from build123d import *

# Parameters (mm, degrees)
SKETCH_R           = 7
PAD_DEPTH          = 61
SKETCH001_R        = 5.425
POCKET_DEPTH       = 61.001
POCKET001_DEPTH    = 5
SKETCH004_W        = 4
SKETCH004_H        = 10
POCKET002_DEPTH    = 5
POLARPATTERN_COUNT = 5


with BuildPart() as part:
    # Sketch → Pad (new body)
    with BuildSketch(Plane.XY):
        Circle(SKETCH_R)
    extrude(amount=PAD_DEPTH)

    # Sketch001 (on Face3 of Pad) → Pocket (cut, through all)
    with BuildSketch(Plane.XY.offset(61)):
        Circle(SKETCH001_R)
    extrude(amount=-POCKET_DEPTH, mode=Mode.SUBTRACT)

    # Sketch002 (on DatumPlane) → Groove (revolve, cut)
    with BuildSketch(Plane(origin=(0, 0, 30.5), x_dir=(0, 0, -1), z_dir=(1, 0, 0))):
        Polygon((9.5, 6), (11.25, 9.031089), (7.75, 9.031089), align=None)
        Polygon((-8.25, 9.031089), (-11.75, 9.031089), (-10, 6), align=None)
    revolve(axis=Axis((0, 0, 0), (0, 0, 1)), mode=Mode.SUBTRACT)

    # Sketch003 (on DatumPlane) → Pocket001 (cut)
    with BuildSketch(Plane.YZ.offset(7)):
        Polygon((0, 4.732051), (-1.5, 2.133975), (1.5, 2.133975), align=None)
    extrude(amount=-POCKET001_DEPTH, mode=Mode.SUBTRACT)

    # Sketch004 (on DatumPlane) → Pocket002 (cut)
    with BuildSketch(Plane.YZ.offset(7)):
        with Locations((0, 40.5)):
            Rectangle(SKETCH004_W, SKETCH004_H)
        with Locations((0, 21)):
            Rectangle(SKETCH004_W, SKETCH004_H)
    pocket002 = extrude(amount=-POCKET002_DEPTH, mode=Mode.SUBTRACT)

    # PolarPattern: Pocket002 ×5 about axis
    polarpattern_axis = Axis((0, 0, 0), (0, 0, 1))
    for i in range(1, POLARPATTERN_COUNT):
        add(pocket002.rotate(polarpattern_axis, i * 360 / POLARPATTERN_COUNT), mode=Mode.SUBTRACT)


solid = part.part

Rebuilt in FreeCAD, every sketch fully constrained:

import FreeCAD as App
import Part
import Sketcher

V = App.Vector
Q = App.Units.Quantity


def add_polygon(sketch, points):
    """Adds a closed chain of lines whose ends are joined by coincident constraints."""
    first, n = sketch.GeometryCount, len(points)
    for a, b in zip(points, points[1:] + points[:1]):
        sketch.addGeometry(Part.LineSegment(App.Vector(*a, 0), App.Vector(*b, 0)), False)
    for i in range(n):
        sketch.addConstraint(Sketcher.Constraint("Coincident", first + i, 2, first + (i + 1) % n, 1))

doc = App.newDocument("Part")
params = doc.addObject("Spreadsheet::Sheet", "Params")
for row, (alias, value) in enumerate([
    ("sketch1_diameter", "14 mm"),
    ("pad1_length", "61 mm"),
    ("sketch2_diameter", "10.85 mm"),
    ("sketch3_height", "3.5 mm"),
    ("groove_angle", "360 deg"),
    ("sketch4_width", "3 mm"),
    ("pocket2_length", "5 mm"),
    ("sketch5_width", "4 mm"),
    ("sketch5_height", "10 mm"),
    ("pocket3_length", "5 mm"),
], start=1):
    params.set(f"A{row}", alias)
    params.set(f"B{row}", "=" + value)
    params.setAlias(f"B{row}", alias)

body = doc.addObject("PartDesign::Body", "Body")

sketch1 = body.newObject("Sketcher::SketchObject", "Sketch")
sketch1.AttachmentSupport = (doc.getObject("XY_Plane"), [""])
sketch1.MapMode = "FlatFace"
sketch1.addGeometry(Part.Circle(V(0, 0, 0), V(0, 0, 1), 7), False)
sketch1.addConstraint(Sketcher.Constraint("Coincident", 0, 3, -1, 1))
sketch1.addConstraint(Sketcher.Constraint("Diameter", 0, 14.0))
sketch1.setExpression("Constraints[1]", "Params.sketch1_diameter")
pad1 = body.newObject("PartDesign::Pad", "Pad")
pad1.Profile = sketch1
pad1.setExpression("Length", "Params.pad1_length")

sketch2 = body.newObject("Sketcher::SketchObject", "Sketch001")
sketch2.AttachmentSupport = (doc.getObject("XY_Plane"), [""])
sketch2.MapMode = "FlatFace"
sketch2.AttachmentOffset = App.Placement(V(0, 0, 61), App.Rotation())
sketch2.addGeometry(Part.Circle(V(0, 0, 0), V(0, 0, 1), 5), False)
sketch2.addConstraint(Sketcher.Constraint("Coincident", 0, 3, -1, 1))
sketch2.addConstraint(Sketcher.Constraint("Diameter", 0, 10.85))
sketch2.setExpression("Constraints[1]", "Params.sketch2_diameter")
pocket1 = body.newObject("PartDesign::Pocket", "Pocket")
pocket1.Profile = sketch2
pocket1.Type = "ThroughAll"

sketch3 = body.newObject("Sketcher::SketchObject", "Sketch002")
sketch3.AttachmentSupport = (doc.getObject("YZ_Plane"), [""])
sketch3.MapMode = "FlatFace"
add_polygon(sketch3, [(6, 21), (9, 19.2), (9, 22.8)])
add_polygon(sketch3, [(9, 38.8), (9, 42.2), (6, 40.5)])
sketch3.addConstraint(Sketcher.Constraint("Vertical", 1))
sketch3.addConstraint(Sketcher.Constraint("Vertical", 3))
sketch3.addConstraint(Sketcher.Constraint("Parallel", 2, 4))
sketch3.addConstraint(Sketcher.Constraint("Parallel", 0, 5))
sketch3.addConstraint(Sketcher.Constraint("Vertical", 1, 2, 3, 2))
sketch3.addConstraint(Sketcher.Constraint("Vertical", 2, 2, 4, 2))
sketch3.addConstraint(Sketcher.Constraint("Equal", 0, 2))
sketch3.addConstraint(Sketcher.Constraint("Angle", 0, Q("-29.999999 deg")))
sketch3.addConstraint(Sketcher.Constraint("DistanceY", 1, 1, 1, 2, 3.5))
sketch3.addConstraint(Sketcher.Constraint("DistanceX", -1, 1, 2, 2, 6.0))
sketch3.addConstraint(Sketcher.Constraint("DistanceY", -1, 1, 2, 2, 21.0))
sketch3.addConstraint(Sketcher.Constraint("DistanceY", 0, 2, 3, 2, 23.0))
sketch3.setExpression("Constraints[14]", "Params.sketch3_height")
groove = body.newObject("PartDesign::Groove", "Groove")
groove.Profile = sketch3
groove.ReferenceAxis = (sketch3, ["V_Axis"])
groove.setExpression("Angle", "Params.groove_angle")

sketch4 = body.newObject("Sketcher::SketchObject", "Sketch003")
sketch4.AttachmentSupport = (doc.getObject("YZ_Plane"), [""])
sketch4.MapMode = "FlatFace"
sketch4.AttachmentOffset = App.Placement(V(0, 0, 7), App.Rotation())
add_polygon(sketch4, [(0, 4.7), (-1.5, 2.1), (1.5, 2.1)])
sketch4.addConstraint(Sketcher.Constraint("Horizontal", 1))
sketch4.addConstraint(Sketcher.Constraint("PointOnObject", 2, 2, -2))
sketch4.addConstraint(Sketcher.Constraint("Equal", 0, 2))
sketch4.addConstraint(Sketcher.Constraint("DistanceX", 1, 1, 1, 2, 3.0))
sketch4.addConstraint(Sketcher.Constraint("Angle", 0, Q("-120.000002 deg")))
sketch4.addConstraint(Sketcher.Constraint("DistanceY", -1, 1, 2, 2, 4.732051))
sketch4.setExpression("Constraints[6]", "Params.sketch4_width")
pocket2 = body.newObject("PartDesign::Pocket", "Pocket001")
pocket2.Profile = sketch4
pocket2.setExpression("Length", "Params.pocket2_length")

sketch5 = body.newObject("Sketcher::SketchObject", "Sketch004")
sketch5.AttachmentSupport = (doc.getObject("YZ_Plane"), [""])
sketch5.MapMode = "FlatFace"
sketch5.AttachmentOffset = App.Placement(V(0, 0, 7), App.Rotation())
add_polygon(sketch5, [(-2, 45.5), (-2, 35.5), (2, 35.5), (2, 45.5)])
add_polygon(sketch5, [(-2, 26), (-2, 16), (2, 16), (2, 26)])
sketch5.addConstraint(Sketcher.Constraint("Vertical", 0))
sketch5.addConstraint(Sketcher.Constraint("Horizontal", 1))
sketch5.addConstraint(Sketcher.Constraint("Vertical", 2))
sketch5.addConstraint(Sketcher.Constraint("Horizontal", 3))
sketch5.addConstraint(Sketcher.Constraint("Vertical", 4))
sketch5.addConstraint(Sketcher.Constraint("Horizontal", 5))
sketch5.addConstraint(Sketcher.Constraint("Vertical", 6))
sketch5.addConstraint(Sketcher.Constraint("Horizontal", 7))
sketch5.addConstraint(Sketcher.Constraint("Vertical", 3, 2, 4, 2))
sketch5.addConstraint(Sketcher.Constraint("Vertical", 2, 2, 5, 2))
sketch5.addConstraint(Sketcher.Constraint("Equal", 2, 4))
sketch5.addConstraint(Sketcher.Constraint("DistanceX", 1, 1, 1, 2, 4.0))
sketch5.addConstraint(Sketcher.Constraint("DistanceY", 0, 2, 0, 1, 10.0))
sketch5.addConstraint(Sketcher.Constraint("DistanceX", 0, 2, -1, 1, 2.0))
sketch5.addConstraint(Sketcher.Constraint("DistanceY", -1, 1, 4, 2, 16.0))
sketch5.addConstraint(Sketcher.Constraint("DistanceY", -1, 1, 0, 2, 35.5))
sketch5.setExpression("Constraints[19]", "Params.sketch5_width")
sketch5.setExpression("Constraints[20]", "Params.sketch5_height")
pocket3 = body.newObject("PartDesign::Pocket", "Pocket002")
pocket3.Profile = sketch5
pocket3.setExpression("Length", "Params.pocket3_length")
doc.recompute()

polarpattern = body.newObject("PartDesign::PolarPattern", "PolarPattern")
polarpattern.Originals = [pocket3]
polarpattern.Axis = (doc.getObject("Z_Axis"), [""])
polarpattern.Angle = 360
polarpattern.Occurrences = 5
body.Tip = polarpattern

doc.recompute()
